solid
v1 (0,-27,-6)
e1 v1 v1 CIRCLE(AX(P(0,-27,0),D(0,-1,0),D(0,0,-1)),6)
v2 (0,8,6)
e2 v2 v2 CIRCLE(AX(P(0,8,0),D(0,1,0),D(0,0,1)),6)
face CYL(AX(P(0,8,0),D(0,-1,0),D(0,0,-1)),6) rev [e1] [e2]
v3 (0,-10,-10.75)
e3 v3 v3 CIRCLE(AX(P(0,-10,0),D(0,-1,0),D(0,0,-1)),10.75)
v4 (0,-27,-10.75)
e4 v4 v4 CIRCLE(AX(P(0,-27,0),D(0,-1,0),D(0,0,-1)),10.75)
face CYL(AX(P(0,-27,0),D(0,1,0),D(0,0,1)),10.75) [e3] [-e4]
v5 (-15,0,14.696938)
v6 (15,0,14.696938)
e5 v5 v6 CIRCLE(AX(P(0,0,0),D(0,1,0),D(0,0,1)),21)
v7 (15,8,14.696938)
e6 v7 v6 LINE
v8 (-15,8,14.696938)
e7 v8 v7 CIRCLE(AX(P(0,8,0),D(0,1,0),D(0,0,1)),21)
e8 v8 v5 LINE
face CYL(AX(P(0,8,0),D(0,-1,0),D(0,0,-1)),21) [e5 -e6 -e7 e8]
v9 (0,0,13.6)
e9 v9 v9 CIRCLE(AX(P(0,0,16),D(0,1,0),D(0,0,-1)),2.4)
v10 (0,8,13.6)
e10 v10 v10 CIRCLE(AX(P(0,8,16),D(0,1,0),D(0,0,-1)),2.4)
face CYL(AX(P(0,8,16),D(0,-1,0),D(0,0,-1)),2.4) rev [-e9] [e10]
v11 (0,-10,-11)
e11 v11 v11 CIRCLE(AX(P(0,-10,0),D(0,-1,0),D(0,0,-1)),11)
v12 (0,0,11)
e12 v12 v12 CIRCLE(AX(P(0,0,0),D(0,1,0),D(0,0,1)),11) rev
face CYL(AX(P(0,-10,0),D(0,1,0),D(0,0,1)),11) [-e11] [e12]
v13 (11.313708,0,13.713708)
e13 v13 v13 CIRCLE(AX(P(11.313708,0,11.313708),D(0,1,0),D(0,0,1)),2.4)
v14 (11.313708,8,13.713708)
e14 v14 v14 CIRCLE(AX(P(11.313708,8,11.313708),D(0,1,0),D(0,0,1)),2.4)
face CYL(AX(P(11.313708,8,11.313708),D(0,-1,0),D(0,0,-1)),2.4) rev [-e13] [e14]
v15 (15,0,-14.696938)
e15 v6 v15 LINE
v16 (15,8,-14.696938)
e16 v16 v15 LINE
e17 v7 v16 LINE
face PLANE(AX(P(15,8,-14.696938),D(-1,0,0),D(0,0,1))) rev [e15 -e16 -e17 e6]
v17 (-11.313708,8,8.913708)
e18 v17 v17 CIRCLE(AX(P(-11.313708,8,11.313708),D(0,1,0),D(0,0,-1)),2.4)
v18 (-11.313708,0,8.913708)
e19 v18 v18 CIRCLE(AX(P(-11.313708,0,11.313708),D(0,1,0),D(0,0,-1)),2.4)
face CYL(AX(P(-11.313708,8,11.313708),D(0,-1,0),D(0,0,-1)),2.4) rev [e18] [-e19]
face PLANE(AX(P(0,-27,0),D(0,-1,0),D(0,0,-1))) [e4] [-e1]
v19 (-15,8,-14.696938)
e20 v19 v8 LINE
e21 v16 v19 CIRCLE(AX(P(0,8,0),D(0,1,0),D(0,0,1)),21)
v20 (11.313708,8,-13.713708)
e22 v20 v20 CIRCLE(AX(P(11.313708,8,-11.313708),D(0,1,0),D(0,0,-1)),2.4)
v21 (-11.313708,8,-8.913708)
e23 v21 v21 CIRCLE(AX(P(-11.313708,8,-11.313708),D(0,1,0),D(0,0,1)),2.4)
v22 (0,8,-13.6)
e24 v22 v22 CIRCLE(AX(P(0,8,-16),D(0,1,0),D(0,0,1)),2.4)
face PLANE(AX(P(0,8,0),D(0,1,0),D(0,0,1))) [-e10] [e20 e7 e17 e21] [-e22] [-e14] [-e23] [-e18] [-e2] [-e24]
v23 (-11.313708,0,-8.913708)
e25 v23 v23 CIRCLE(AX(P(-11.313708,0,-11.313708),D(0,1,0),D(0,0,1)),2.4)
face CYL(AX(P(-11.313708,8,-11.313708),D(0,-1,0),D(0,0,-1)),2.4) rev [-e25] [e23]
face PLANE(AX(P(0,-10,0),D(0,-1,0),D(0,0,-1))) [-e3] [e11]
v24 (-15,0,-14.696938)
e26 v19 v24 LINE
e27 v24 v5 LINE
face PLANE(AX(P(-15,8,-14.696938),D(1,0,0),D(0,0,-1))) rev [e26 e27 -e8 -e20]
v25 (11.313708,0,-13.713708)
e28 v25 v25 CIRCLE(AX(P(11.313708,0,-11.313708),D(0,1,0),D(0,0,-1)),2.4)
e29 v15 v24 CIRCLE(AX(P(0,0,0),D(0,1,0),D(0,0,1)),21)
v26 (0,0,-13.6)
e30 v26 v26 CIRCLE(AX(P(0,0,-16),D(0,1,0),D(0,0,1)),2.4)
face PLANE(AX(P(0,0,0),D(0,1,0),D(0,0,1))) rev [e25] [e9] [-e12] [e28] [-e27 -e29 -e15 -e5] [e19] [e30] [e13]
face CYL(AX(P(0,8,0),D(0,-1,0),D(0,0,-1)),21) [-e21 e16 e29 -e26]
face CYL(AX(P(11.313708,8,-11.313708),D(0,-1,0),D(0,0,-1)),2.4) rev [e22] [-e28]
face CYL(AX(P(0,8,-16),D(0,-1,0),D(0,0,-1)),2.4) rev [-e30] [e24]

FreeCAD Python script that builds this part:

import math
import FreeCAD as App
import Part
import Sketcher
Q = App.Units.Quantity

doc = App.newDocument("Part")
body = doc.addObject("PartDesign::Body", "Body")

# Sketch on XZ plane
sketch1 = body.newObject("Sketcher::SketchObject", "Sketch")
sketch1.AttachmentSupport = (doc.getObject("XZ_Plane"), [""])
sketch1.MapMode = "FlatFace"
sketch1.addGeometry([
    Part.LineSegment(App.Vector(-15, -14.7, 0), App.Vector(-15, 14.7, 0)),  # 0
    Part.ArcOfCircle(Part.Circle(App.Vector(0, 0, 0), App.Vector(0, 0, 1), 21), math.radians(44), math.radians(136)),  # 1
    Part.LineSegment(App.Vector(15, 14.7, 0), App.Vector(15, -14.7, 0)),  # 2
    Part.ArcOfCircle(Part.Circle(App.Vector(0, 0, 0), App.Vector(0, 0, 1), 21), math.radians(-136), math.radians(-44)),  # 3
    Part.Circle(App.Vector(-11.3, 11.3, 0), App.Vector(0, 0, 1), 2.4),  # 4
    Part.Circle(App.Vector(0, 16, 0), App.Vector(0, 0, 1), 2.4),  # 5
    Part.Circle(App.Vector(11.3, 11.3, 0), App.Vector(0, 0, 1), 2.4),  # 6
    Part.Circle(App.Vector(-11.3, -11.3, 0), App.Vector(0, 0, 1), 2.4),  # 7
    Part.Circle(App.Vector(0, 0, 0), App.Vector(0, 0, 1), 6),  # 8
    Part.Circle(App.Vector(0, -16, 0), App.Vector(0, 0, 1), 2.4),  # 9
    Part.Circle(App.Vector(11.3, -11.3, 0), App.Vector(0, 0, 1), 2.4),  # 10
], False)
sketch1.addConstraint([
    Sketcher.Constraint("Coincident", 0, 2, 1, 2),
    Sketcher.Constraint("Coincident", 1, 1, 2, 1),
    Sketcher.Constraint("Coincident", 2, 2, 3, 2),
    Sketcher.Constraint("Coincident", 3, 1, 0, 1),
    Sketcher.Constraint("Vertical", 0),
    Sketcher.Constraint("Vertical", 2),
    Sketcher.Constraint("Coincident", 1, 3, -1, 1),
    Sketcher.Constraint("Coincident", 3, 3, -1, 1),
    Sketcher.Constraint("Coincident", 8, 3, -1, 1),
    Sketcher.Constraint("Equal", 1, 3),
    Sketcher.Constraint("Equal", 4, 5),
    Sketcher.Constraint("Equal", 5, 6),
    Sketcher.Constraint("Equal", 6, 7),
    Sketcher.Constraint("Equal", 7, 9),
    Sketcher.Constraint("Equal", 9, 10),
    Sketcher.Constraint("Symmetric", 6, 3, 7, 3, -1, 1),
    Sketcher.Constraint("Symmetric", 5, 3, 9, 3, -1, 1),
    Sketcher.Constraint("Symmetric", 4, 3, 10, 3, -1, 1),
    Sketcher.Constraint("Symmetric", 4, 3, 6, 3, -2),
    Sketcher.Constraint("PointOnObject", 5, 3, -2),
    Sketcher.Constraint("Horizontal", 0, 2, 1, 1),
    Sketcher.Constraint("Diameter", 8, Q("12 mm")),
    Sketcher.Constraint("Radius", 1, Q("21 mm")),
    Sketcher.Constraint("Diameter", 4, Q("4.8 mm")),
    Sketcher.Constraint("DistanceY", -1, 1, 5, 3, Q("16 mm")),
    Sketcher.Constraint("DistanceX", 0, 2, -1, 1, Q("15 mm")),
    Sketcher.Constraint("DistanceX", 4, 3, -1, 1, Q("11.313708 mm")),
    Sketcher.Constraint("DistanceY", -1, 1, 4, 3, Q("11.313708 mm")),
])
pad1 = body.newObject("PartDesign::Pad", "Pad")
pad1.Profile = sketch1
pad1.Length = 8
pad1.Reversed = True

# Sketch on XZ plane
sketch2 = body.newObject("Sketcher::SketchObject", "Sketch001")
sketch2.AttachmentSupport = (doc.getObject("XZ_Plane"), [""])
sketch2.MapMode = "FlatFace"
sketch2.addGeometry([
    Part.Circle(App.Vector(0, 0, 0), App.Vector(0, 0, 1), 11),
    Part.Circle(App.Vector(0, 0, 0), App.Vector(0, 0, 1), 6),
], False)
sketch2.addConstraint([
    Sketcher.Constraint("Coincident", 0, 3, -1, 1),
    Sketcher.Constraint("Coincident", 1, 3, -1, 1),
    Sketcher.Constraint("Diameter", 0, Q("22 mm")),
    Sketcher.Constraint("Diameter", 1, Q("12 mm")),
])
pad2 = body.newObject("PartDesign::Pad", "Pad001")
pad2.Profile = sketch2
pad2.Length = 10

# Sketch on XZ plane
sketch3 = body.newObject("Sketcher::SketchObject", "Sketch002")
sketch3.AttachmentSupport = (doc.getObject("XZ_Plane"), [""])
sketch3.MapMode = "FlatFace"
sketch3.AttachmentOffset = App.Placement(App.Vector(0, 0, 10), App.Rotation())
sketch3.addGeometry([
    Part.Circle(App.Vector(0, 0, 0), App.Vector(0, 0, 1), 11),
    Part.Circle(App.Vector(0, 0, 0), App.Vector(0, 0, 1), 6),
], False)
sketch3.addConstraint([
    Sketcher.Constraint("Coincident", 0, 3, -1, 1),
    Sketcher.Constraint("Coincident", 1, 3, -1, 1),
    Sketcher.Constraint("Diameter", 1, Q("12 mm")),
    Sketcher.Constraint("Diameter", 0, Q("21.5 mm")),
])
pad3 = body.newObject("PartDesign::Pad", "Pad002")
pad3.Profile = sketch3
pad3.Length = 17

doc.recompute()
